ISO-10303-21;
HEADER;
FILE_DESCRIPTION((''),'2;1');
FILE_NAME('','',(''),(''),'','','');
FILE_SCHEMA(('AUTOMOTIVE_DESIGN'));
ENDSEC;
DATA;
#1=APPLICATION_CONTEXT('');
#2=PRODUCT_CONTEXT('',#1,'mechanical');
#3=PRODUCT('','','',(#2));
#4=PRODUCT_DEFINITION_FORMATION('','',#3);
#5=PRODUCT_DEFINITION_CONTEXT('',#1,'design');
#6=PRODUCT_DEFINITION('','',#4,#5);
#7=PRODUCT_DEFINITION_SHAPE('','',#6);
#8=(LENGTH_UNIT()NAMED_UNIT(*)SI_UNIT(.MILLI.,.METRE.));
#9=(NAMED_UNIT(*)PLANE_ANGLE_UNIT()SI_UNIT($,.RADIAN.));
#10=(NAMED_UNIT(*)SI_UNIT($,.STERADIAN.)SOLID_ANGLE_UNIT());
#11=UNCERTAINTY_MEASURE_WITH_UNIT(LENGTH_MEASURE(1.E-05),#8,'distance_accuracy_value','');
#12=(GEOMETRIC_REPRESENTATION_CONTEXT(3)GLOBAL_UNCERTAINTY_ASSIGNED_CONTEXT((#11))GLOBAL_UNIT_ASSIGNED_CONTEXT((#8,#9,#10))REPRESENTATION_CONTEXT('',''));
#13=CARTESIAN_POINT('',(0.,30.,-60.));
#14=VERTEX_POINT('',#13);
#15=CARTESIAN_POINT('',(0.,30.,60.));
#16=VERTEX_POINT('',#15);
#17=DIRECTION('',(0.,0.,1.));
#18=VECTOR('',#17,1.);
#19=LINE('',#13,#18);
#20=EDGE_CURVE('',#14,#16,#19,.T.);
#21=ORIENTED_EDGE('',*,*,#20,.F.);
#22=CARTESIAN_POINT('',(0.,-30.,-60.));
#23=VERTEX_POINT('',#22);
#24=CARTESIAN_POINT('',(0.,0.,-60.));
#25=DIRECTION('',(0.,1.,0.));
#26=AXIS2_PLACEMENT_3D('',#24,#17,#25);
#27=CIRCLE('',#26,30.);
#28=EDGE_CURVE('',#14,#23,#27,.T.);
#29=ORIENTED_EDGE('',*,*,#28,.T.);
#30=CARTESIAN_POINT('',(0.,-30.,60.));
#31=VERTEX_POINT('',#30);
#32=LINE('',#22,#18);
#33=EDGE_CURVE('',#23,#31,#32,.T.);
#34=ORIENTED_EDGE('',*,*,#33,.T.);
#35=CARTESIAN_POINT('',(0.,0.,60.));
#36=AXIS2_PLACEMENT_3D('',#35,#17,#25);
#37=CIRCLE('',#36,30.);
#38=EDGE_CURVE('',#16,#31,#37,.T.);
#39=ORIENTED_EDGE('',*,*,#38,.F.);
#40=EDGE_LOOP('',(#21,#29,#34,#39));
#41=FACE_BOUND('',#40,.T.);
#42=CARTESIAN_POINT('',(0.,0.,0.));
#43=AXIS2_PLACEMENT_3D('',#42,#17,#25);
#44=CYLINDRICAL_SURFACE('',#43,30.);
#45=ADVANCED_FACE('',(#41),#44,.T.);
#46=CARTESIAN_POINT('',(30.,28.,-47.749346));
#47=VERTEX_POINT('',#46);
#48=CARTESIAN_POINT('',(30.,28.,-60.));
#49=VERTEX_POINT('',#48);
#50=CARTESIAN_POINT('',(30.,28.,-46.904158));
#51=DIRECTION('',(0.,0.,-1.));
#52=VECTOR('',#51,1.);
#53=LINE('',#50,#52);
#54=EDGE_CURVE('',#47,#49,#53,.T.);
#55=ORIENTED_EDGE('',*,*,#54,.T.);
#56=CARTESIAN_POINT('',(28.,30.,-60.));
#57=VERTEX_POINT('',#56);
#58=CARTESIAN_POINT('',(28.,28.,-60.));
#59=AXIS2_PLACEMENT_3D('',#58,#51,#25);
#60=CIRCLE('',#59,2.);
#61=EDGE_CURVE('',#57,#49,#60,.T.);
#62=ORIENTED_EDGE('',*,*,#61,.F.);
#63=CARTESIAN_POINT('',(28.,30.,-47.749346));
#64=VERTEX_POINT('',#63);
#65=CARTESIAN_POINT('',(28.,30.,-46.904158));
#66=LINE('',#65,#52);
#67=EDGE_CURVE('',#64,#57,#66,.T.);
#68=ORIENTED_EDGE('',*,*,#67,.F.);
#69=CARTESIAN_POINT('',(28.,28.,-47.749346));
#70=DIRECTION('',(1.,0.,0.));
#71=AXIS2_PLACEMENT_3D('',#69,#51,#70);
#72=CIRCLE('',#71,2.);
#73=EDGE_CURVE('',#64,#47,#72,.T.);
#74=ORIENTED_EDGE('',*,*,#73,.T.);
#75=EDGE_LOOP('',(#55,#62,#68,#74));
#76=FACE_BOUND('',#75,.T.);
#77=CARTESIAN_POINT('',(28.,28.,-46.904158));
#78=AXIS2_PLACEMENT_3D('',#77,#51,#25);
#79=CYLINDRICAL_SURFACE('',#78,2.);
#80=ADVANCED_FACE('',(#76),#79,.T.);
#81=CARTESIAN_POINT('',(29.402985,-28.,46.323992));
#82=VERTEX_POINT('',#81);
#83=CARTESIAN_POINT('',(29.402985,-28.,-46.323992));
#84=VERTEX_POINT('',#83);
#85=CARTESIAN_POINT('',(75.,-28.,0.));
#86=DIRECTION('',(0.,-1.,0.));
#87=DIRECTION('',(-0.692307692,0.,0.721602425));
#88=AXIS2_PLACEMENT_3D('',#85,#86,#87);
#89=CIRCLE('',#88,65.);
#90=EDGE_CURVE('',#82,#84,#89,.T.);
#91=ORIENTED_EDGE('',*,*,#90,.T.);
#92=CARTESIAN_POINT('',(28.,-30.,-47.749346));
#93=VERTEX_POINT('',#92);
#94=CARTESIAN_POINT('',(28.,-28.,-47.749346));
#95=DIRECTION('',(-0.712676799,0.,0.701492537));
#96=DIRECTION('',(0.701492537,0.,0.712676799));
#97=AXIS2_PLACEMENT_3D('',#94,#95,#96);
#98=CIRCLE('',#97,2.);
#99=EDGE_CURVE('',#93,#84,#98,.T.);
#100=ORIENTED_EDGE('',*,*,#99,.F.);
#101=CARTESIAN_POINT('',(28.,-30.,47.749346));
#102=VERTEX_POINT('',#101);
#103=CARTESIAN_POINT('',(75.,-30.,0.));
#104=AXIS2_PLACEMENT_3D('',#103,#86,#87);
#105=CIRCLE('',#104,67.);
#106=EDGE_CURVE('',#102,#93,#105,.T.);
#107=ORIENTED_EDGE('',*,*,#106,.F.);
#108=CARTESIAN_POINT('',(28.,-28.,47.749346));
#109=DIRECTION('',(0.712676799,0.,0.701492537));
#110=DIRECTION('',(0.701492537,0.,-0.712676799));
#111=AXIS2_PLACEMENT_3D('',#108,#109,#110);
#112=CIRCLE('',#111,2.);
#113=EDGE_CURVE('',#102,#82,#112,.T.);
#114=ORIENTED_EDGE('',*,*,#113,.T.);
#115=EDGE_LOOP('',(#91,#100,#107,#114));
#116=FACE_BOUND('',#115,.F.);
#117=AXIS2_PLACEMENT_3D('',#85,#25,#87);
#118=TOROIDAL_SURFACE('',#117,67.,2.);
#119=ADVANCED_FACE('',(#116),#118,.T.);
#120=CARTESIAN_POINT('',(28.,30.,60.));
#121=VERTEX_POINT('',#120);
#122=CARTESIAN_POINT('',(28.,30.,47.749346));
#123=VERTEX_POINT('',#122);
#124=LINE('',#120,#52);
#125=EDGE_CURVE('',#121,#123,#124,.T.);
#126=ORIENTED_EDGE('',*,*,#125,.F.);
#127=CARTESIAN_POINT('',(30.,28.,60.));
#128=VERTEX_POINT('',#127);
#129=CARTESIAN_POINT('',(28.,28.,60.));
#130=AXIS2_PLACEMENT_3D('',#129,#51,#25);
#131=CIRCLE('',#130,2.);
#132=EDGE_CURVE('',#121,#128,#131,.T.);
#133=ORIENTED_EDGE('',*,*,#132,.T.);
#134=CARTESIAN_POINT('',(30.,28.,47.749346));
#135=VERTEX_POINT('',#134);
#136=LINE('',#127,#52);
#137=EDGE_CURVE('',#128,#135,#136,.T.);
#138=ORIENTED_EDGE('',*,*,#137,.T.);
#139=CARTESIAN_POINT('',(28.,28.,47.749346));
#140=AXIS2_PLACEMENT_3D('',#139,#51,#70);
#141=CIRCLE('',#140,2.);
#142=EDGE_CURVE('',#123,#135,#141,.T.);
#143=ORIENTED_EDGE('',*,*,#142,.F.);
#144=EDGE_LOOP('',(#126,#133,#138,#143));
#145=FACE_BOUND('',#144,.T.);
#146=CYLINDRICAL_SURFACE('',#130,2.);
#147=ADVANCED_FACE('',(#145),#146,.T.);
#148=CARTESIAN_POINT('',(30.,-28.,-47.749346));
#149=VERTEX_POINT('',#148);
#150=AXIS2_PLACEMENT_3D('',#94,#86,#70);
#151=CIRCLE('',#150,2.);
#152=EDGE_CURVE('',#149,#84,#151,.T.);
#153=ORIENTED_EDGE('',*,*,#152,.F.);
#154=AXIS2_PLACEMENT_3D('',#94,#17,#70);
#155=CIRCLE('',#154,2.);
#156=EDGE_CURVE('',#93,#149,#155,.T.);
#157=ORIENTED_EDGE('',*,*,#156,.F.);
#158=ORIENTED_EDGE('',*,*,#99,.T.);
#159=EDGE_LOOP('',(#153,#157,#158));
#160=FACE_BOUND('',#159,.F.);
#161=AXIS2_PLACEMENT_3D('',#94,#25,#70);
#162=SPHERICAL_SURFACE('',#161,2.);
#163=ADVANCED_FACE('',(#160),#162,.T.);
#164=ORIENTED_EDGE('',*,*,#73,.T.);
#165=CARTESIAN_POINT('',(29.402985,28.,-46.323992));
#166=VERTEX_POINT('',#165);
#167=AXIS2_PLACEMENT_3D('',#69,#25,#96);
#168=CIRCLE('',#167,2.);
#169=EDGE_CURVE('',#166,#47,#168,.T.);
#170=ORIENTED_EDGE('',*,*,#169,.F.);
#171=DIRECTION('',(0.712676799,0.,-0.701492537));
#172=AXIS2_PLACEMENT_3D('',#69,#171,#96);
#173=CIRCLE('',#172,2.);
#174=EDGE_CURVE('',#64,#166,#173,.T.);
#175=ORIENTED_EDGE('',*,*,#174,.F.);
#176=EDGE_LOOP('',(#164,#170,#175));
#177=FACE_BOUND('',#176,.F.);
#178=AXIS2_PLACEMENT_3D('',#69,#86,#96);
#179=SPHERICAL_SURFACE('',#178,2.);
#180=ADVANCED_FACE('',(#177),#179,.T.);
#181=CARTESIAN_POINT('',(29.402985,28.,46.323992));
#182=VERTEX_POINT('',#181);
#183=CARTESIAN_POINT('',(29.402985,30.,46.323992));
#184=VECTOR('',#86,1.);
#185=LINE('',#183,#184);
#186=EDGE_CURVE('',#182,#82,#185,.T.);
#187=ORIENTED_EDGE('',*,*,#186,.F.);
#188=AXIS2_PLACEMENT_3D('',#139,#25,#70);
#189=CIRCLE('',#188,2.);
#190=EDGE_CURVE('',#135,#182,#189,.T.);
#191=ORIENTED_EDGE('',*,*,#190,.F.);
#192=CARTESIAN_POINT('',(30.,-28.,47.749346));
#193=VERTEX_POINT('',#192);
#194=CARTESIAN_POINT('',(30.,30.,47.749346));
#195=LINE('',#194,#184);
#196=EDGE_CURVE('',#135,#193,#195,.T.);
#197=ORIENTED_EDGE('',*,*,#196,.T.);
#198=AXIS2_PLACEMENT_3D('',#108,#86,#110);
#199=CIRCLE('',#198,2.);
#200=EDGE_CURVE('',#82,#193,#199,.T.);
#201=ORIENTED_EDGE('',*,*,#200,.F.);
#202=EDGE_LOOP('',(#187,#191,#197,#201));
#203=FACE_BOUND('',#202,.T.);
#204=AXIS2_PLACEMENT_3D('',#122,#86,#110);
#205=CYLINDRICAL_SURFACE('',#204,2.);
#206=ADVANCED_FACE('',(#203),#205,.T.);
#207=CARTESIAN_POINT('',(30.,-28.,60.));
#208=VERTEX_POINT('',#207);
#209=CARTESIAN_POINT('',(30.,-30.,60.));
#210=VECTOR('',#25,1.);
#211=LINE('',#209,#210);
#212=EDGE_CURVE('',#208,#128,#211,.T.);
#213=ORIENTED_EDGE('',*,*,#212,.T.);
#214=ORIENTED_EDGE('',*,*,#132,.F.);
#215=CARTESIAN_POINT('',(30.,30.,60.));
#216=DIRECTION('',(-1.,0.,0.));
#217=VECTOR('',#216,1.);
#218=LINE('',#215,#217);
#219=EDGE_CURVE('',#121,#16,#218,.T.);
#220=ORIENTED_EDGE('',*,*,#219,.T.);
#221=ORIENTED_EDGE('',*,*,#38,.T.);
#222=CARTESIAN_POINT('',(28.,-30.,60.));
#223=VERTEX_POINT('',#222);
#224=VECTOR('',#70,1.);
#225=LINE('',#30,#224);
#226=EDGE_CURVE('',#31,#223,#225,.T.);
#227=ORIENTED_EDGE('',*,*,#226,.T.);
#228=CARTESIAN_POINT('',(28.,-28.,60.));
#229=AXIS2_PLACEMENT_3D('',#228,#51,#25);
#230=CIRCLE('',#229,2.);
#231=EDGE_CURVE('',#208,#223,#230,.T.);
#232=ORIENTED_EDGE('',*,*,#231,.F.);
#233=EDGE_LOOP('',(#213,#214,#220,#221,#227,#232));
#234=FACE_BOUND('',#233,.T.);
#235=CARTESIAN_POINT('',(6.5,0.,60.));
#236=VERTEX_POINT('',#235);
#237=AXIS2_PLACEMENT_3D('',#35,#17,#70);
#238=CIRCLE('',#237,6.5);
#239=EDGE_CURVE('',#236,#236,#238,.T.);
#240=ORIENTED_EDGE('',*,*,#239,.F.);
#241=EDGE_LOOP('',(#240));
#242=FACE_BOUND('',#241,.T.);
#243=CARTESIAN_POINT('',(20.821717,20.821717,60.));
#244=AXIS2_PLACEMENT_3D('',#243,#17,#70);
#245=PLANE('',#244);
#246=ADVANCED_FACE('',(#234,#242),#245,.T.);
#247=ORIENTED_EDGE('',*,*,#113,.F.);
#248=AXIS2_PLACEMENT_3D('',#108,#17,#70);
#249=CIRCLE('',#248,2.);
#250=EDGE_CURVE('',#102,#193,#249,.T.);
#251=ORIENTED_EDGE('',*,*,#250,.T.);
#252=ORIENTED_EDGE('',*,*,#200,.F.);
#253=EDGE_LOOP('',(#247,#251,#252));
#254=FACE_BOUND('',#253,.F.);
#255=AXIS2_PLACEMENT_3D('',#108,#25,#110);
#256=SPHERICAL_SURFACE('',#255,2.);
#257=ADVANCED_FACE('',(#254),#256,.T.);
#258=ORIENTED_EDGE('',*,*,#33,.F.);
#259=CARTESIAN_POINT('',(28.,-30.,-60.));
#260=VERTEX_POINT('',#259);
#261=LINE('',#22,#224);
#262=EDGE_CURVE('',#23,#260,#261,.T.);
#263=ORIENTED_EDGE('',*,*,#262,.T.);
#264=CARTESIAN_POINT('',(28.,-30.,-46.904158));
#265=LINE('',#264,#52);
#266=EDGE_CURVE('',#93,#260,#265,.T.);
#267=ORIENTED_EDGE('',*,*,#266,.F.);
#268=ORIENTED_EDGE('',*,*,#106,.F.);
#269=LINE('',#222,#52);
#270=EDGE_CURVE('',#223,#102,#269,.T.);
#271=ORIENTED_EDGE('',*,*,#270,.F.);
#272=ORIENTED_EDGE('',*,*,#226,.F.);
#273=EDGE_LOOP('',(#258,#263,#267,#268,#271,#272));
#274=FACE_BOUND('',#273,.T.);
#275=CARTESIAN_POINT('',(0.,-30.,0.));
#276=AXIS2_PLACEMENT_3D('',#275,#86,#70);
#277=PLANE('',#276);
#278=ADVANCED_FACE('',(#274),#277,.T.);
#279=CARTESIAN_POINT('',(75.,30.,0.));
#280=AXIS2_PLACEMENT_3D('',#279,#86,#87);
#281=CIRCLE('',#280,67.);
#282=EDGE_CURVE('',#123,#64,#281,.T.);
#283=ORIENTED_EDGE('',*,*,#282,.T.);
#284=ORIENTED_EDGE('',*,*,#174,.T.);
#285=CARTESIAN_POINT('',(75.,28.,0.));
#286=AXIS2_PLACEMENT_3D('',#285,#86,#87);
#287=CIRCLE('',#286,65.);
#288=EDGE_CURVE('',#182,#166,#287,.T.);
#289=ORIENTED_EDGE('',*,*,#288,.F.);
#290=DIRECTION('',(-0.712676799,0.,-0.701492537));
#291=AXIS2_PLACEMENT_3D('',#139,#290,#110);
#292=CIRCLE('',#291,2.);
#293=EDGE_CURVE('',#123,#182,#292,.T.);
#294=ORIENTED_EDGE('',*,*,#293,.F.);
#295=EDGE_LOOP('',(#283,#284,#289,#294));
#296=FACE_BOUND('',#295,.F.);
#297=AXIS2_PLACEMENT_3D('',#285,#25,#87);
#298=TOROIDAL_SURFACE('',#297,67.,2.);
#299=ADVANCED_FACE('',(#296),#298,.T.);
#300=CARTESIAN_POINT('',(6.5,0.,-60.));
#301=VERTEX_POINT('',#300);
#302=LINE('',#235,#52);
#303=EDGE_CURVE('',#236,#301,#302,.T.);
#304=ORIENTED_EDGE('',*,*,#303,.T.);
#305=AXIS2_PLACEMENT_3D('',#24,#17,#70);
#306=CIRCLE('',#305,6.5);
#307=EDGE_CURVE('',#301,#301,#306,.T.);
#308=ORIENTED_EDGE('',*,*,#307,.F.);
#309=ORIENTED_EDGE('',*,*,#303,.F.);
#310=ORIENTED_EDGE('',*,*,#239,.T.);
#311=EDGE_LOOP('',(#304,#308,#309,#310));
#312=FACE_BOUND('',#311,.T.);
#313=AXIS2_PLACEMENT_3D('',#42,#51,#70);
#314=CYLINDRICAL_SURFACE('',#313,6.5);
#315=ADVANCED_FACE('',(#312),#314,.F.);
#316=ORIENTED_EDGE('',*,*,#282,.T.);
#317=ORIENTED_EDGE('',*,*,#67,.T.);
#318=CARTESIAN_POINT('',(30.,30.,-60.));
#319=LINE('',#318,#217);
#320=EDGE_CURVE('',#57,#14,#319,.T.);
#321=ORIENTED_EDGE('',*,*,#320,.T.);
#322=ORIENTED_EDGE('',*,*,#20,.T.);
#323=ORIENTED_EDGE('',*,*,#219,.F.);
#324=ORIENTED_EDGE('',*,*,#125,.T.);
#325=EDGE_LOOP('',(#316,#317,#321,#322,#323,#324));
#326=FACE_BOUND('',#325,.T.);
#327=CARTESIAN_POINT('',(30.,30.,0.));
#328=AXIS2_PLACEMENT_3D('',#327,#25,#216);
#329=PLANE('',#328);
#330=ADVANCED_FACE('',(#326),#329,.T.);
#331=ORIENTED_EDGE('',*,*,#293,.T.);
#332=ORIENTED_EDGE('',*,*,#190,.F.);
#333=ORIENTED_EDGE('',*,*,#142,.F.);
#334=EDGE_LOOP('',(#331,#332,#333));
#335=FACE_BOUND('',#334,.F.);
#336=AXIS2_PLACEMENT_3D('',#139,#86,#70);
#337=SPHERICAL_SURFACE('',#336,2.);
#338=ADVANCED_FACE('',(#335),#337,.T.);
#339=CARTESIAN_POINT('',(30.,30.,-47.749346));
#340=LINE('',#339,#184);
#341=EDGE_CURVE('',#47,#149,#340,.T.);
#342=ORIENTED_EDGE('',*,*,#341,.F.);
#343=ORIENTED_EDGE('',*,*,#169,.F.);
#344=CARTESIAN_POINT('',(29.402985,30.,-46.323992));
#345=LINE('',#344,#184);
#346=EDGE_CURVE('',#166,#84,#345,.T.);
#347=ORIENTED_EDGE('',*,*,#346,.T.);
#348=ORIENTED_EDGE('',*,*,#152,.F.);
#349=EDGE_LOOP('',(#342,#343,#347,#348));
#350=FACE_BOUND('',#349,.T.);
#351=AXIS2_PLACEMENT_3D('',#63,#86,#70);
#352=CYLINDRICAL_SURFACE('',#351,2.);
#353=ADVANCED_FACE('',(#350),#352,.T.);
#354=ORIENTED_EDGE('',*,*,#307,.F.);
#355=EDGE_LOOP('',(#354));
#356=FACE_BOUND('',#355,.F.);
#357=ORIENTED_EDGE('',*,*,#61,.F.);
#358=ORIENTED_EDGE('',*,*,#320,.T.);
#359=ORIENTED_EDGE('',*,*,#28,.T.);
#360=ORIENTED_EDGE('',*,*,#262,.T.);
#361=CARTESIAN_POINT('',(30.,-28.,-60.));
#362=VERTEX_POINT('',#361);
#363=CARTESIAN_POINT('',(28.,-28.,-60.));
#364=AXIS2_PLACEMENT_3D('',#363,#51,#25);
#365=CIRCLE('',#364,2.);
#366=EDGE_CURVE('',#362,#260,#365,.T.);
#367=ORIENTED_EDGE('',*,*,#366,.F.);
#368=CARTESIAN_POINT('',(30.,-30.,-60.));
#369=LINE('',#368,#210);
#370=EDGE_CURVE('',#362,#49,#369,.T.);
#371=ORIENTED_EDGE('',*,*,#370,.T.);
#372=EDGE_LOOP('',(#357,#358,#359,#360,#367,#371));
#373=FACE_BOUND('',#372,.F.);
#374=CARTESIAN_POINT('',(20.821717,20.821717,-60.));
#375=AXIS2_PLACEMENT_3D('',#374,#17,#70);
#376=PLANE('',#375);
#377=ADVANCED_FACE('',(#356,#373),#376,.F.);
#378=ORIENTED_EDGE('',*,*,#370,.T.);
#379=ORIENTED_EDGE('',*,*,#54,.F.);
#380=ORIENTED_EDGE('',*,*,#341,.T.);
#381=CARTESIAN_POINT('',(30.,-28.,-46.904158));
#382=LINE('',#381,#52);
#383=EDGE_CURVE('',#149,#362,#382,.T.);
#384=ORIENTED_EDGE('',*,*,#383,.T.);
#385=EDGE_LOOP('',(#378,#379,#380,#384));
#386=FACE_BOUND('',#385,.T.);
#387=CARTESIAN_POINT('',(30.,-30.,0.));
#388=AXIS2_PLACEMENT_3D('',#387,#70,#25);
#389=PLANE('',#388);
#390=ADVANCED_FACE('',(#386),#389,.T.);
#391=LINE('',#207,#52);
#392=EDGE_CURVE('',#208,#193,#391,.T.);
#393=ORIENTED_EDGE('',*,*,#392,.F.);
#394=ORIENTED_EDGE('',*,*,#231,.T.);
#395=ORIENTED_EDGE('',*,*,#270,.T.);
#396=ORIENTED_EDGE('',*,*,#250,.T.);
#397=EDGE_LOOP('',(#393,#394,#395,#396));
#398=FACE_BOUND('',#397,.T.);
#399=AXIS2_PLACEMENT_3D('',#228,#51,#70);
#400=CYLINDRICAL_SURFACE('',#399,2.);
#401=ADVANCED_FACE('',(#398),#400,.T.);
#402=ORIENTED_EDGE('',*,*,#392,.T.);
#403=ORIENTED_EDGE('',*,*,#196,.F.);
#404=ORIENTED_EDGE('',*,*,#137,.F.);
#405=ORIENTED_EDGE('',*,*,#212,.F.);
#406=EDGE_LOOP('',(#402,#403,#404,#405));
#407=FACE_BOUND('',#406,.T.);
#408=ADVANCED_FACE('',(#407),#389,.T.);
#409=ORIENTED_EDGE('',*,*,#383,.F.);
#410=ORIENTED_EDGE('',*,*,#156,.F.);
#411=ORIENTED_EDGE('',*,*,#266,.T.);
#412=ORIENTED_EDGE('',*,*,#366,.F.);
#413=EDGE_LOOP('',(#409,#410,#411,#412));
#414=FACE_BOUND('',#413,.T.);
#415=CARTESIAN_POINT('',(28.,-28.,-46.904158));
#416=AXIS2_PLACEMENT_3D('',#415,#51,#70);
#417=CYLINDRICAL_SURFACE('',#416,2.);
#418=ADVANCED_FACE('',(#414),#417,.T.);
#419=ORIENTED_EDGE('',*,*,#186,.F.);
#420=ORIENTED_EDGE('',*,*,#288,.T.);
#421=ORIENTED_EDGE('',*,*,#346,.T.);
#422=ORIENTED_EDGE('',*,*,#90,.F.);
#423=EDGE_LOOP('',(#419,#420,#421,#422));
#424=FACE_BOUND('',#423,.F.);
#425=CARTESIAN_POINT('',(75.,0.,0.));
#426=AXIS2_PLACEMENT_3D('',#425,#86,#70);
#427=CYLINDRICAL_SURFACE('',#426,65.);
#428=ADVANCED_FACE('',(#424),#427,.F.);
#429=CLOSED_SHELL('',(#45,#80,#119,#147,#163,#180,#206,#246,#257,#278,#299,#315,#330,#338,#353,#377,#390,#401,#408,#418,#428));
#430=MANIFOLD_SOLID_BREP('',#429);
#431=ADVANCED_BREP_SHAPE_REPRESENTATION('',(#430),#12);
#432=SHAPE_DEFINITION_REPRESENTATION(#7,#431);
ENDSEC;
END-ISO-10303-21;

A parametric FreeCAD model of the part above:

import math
import FreeCAD as App
import Part
import Sketcher

V = App.Vector


def edges_at(feature, points):
    """Names of the edges that pass closest to the given points."""
    edges = feature.Shape.Edges
    near = lambda p: min(range(len(edges)), key=lambda i: edges[i].distToShape(Part.Vertex(*p))[0])
    return sorted({f"Edge{near(p) + 1}" for p in points})

doc = App.newDocument("Part")
body = doc.addObject("PartDesign::Body", "Body")

sketch1 = body.newObject("Sketcher::SketchObject", "Sketch")
sketch1.AttachmentSupport = (doc.getObject("XY_Plane"), [""])
sketch1.MapMode = "FlatFace"
sketch1.addGeometry([
    Part.LineSegment(V(30, 30, 0), V(0, 30, 0)),
    Part.ArcOfCircle(Part.Circle(V(0, 0, 0), V(0, 0, 1), 30), math.radians(90), math.radians(270)),
    Part.LineSegment(V(0, -30, 0), V(30, -30, 0)),
    Part.LineSegment(V(30, -30, 0), V(30, 30, 0)),
    Part.Circle(V(0, 0, 0), V(0, 0, 1), 6.5),
], False)
sketch1.addConstraint([
    Sketcher.Constraint("Tangent", 0, 2, 1, 1),
    Sketcher.Constraint("Tangent", 1, 2, 2, 1),
    Sketcher.Constraint("Coincident", 2, 2, 3, 1),
    Sketcher.Constraint("Coincident", 3, 2, 0, 1),
    Sketcher.Constraint("Horizontal", 0),
    Sketcher.Constraint("Horizontal", 2),
    Sketcher.Constraint("Vertical", 3),
    Sketcher.Constraint("Coincident", 1, 3, -1, 1),
    Sketcher.Constraint("Coincident", 4, 3, -1, 1),
    Sketcher.Constraint("Diameter", 4, 13.0),
    Sketcher.Constraint("Radius", 1, 30.0),
    Sketcher.Constraint("DistanceX", 0, 2, 0, 1, 30.0),
])
pad1 = body.newObject("PartDesign::Pad", "Pad")
pad1.Profile = sketch1
pad1.Length = 120
pad1.Midplane = True

sketch2 = body.newObject("Sketcher::SketchObject", "Sketch001")
sketch2.AttachmentSupport = (doc.getObject("XZ_Plane"), [""])
sketch2.MapMode = "FlatFace"
sketch2.addGeometry(Part.Circle(V(75, 0, 0), V(0, 0, 1), 65), False)
sketch2.addConstraint([
    Sketcher.Constraint("PointOnObject", 0, 3, -1),
    Sketcher.Constraint("Diameter", 0, 130.0),
    Sketcher.Constraint("DistanceX", -1, 1, 0, 3, 75.0),
])
pocket1 = body.newObject("PartDesign::Pocket", "Pocket")
pocket1.Profile = sketch2
pocket1.Length = 120
pocket1.Midplane = True
doc.recompute()

fillet = body.newObject("PartDesign::Fillet", "Fillet")
fillet.Base = (pocket1, edges_at(pocket1, [
    (10, -30, 0),
    (30, -30, 53.452),
    (30, 0, -46.904),
    (30, 0, 46.904),
    (30, 30, 53.452),
    (10, 30, 0),
    (30, -30, -53.452),
    (30, 30, -53.452),
]))
fillet.Radius = 2

doc.recompute()
